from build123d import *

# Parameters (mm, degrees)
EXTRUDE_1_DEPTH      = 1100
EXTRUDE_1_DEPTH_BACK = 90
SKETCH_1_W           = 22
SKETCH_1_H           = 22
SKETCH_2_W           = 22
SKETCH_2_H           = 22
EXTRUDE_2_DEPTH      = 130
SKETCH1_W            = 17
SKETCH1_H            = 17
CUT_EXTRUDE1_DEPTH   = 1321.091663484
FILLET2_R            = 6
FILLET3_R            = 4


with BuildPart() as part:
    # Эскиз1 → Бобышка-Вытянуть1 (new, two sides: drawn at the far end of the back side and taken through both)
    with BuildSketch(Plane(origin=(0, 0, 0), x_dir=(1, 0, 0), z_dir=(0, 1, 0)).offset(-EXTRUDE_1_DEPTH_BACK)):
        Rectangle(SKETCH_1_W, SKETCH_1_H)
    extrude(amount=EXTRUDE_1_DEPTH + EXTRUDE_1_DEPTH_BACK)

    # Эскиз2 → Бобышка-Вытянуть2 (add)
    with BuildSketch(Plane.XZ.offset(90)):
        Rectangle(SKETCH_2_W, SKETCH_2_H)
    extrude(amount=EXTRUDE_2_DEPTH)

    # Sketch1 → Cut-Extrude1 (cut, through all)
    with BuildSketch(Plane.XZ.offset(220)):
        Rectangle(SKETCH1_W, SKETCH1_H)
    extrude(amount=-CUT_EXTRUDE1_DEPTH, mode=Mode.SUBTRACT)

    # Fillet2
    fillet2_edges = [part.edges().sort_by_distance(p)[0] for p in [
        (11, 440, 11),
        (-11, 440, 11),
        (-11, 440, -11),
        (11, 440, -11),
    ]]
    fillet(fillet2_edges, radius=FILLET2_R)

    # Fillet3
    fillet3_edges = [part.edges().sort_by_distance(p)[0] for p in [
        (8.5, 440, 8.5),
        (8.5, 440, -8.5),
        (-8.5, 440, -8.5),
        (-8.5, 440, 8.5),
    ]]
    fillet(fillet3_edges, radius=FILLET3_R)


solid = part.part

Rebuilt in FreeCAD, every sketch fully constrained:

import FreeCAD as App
import Part
import Sketcher
from FreeCAD import Vector


def edges_at(feature, points):
    """Names of the edges that pass closest to the given points."""
    edges = feature.Shape.Edges
    near = lambda p: min(range(len(edges)), key=lambda i: edges[i].distToShape(Part.Vertex(*p))[0])
    return sorted({f"Edge{near(p) + 1}" for p in points})


def add_polygon(sketch, points):
    """Adds a closed chain of lines whose ends are joined by coincident constraints."""
    first, n = sketch.GeometryCount, len(points)
    for a, b in zip(points, points[1:] + points[:1]):
        sketch.addGeometry(Part.LineSegment(App.Vector(*a, 0), App.Vector(*b, 0)), False)
    for i in range(n):
        sketch.addConstraint(Sketcher.Constraint("Coincident", first + i, 2, first + (i + 1) % n, 1))

doc = App.newDocument("Part")
body = doc.addObject("PartDesign::Body", "Body")

# Sketch on XZ plane
sketch1 = doc.addObject("Sketcher::SketchObject", "Sketch")
body.addObject(sketch1)
sketch1.AttachmentSupport = (doc.XZ_Plane, [""])
sketch1.MapMode = "FlatFace"
add_polygon(sketch1, [(-11, -11), (-11, 11), (11, 11), (11, -11)])  # lines 0-3
sketch1.addConstraint(Sketcher.Constraint("Vertical", 0))
sketch1.addConstraint(Sketcher.Constraint("Horizontal", 1))
sketch1.addConstraint(Sketcher.Constraint("Vertical", 2))
sketch1.addConstraint(Sketcher.Constraint("Horizontal", 3))
sketch1.addConstraint(Sketcher.Constraint("Symmetric", 0, 2, 2, 2, -1, 1))
sketch1.addConstraint(Sketcher.Constraint("Equal", 3, 0))
sketch1.addConstraint(Sketcher.Constraint("DistanceX", 1, 1, 1, 2, 22.0))
pad1 = doc.addObject("PartDesign::Pad", "Pad")
body.addObject(pad1)
pad1.Profile = sketch1
pad1.Type = "TwoLengths"
pad1.Length = 1100
pad1.Length2 = 90
pad1.Reversed = True

# Sketch on XZ plane
sketch2 = doc.addObject("Sketcher::SketchObject", "Sketch001")
body.addObject(sketch2)
sketch2.AttachmentSupport = (doc.XZ_Plane, [""])
sketch2.MapMode = "FlatFace"
sketch2.AttachmentOffset = App.Placement(Vector(0, 0, 90), App.Rotation())
add_polygon(sketch2, [(-11, 11), (-11, -11), (11, -11), (11, 11)])  # lines 0-3
sketch2.addConstraint(Sketcher.Constraint("Vertical", 0))
sketch2.addConstraint(Sketcher.Constraint("Horizontal", 1))
sketch2.addConstraint(Sketcher.Constraint("Vertical", 2))
sketch2.addConstraint(Sketcher.Constraint("Horizontal", 3))
sketch2.addConstraint(Sketcher.Constraint("Symmetric", 0, 2, 2, 2, -1, 1))
sketch2.addConstraint(Sketcher.Constraint("Equal", 3, 0))
sketch2.addConstraint(Sketcher.Constraint("DistanceX", 1, 1, 1, 2, 22.0))
pad2 = doc.addObject("PartDesign::Pad", "Pad001")
body.addObject(pad2)
pad2.Profile = sketch2
pad2.Length = 130

# Sketch on XZ plane
sketch3 = doc.addObject("Sketcher::SketchObject", "Sketch002")
body.addObject(sketch3)
sketch3.AttachmentSupport = (doc.XZ_Plane, [""])
sketch3.MapMode = "FlatFace"
sketch3.AttachmentOffset = App.Placement(Vector(0, 0, 220), App.Rotation())
add_polygon(sketch3, [(-8, 8), (-8, -8), (8, -8), (8, 8)])  # lines 0-3
sketch3.addConstraint(Sketcher.Constraint("Vertical", 0))
sketch3.addConstraint(Sketcher.Constraint("Horizontal", 1))
sketch3.addConstraint(Sketcher.Constraint("Vertical", 2))
sketch3.addConstraint(Sketcher.Constraint("Horizontal", 3))
sketch3.addConstraint(Sketcher.Constraint("Symmetric", 0, 2, 2, 2, -1, 1))
sketch3.addConstraint(Sketcher.Constraint("Equal", 3, 0))
sketch3.addConstraint(Sketcher.Constraint("DistanceX", 1, 1, 1, 2, 17.0))
pocket1 = doc.addObject("PartDesign::Pocket", "Pocket")
body.addObject(pocket1)
pocket1.Profile = sketch3
pocket1.Type = "ThroughAll"
doc.recompute()

fillet = doc.addObject("PartDesign::Fillet", "Fillet")
body.addObject(fillet)
fillet.Base = (pocket1, edges_at(pocket1, [
    (11, 440, 11),
    (-11, 440, 11),
    (-11, 440, -11),
    (11, 440, -11),
]))
fillet.Radius = 6
doc.recompute()

fillet2 = doc.addObject("PartDesign::Fillet", "Fillet001")
body.addObject(fillet2)
fillet2.Base = (fillet, edges_at(fillet, [
    (8.5, 440, 8.5),
    (8.5, 440, -8.5),
    (-8.5, 440, -8.5),
    (-8.5, 440, 8.5),
]))
fillet2.Radius = 4

doc.recompute()
